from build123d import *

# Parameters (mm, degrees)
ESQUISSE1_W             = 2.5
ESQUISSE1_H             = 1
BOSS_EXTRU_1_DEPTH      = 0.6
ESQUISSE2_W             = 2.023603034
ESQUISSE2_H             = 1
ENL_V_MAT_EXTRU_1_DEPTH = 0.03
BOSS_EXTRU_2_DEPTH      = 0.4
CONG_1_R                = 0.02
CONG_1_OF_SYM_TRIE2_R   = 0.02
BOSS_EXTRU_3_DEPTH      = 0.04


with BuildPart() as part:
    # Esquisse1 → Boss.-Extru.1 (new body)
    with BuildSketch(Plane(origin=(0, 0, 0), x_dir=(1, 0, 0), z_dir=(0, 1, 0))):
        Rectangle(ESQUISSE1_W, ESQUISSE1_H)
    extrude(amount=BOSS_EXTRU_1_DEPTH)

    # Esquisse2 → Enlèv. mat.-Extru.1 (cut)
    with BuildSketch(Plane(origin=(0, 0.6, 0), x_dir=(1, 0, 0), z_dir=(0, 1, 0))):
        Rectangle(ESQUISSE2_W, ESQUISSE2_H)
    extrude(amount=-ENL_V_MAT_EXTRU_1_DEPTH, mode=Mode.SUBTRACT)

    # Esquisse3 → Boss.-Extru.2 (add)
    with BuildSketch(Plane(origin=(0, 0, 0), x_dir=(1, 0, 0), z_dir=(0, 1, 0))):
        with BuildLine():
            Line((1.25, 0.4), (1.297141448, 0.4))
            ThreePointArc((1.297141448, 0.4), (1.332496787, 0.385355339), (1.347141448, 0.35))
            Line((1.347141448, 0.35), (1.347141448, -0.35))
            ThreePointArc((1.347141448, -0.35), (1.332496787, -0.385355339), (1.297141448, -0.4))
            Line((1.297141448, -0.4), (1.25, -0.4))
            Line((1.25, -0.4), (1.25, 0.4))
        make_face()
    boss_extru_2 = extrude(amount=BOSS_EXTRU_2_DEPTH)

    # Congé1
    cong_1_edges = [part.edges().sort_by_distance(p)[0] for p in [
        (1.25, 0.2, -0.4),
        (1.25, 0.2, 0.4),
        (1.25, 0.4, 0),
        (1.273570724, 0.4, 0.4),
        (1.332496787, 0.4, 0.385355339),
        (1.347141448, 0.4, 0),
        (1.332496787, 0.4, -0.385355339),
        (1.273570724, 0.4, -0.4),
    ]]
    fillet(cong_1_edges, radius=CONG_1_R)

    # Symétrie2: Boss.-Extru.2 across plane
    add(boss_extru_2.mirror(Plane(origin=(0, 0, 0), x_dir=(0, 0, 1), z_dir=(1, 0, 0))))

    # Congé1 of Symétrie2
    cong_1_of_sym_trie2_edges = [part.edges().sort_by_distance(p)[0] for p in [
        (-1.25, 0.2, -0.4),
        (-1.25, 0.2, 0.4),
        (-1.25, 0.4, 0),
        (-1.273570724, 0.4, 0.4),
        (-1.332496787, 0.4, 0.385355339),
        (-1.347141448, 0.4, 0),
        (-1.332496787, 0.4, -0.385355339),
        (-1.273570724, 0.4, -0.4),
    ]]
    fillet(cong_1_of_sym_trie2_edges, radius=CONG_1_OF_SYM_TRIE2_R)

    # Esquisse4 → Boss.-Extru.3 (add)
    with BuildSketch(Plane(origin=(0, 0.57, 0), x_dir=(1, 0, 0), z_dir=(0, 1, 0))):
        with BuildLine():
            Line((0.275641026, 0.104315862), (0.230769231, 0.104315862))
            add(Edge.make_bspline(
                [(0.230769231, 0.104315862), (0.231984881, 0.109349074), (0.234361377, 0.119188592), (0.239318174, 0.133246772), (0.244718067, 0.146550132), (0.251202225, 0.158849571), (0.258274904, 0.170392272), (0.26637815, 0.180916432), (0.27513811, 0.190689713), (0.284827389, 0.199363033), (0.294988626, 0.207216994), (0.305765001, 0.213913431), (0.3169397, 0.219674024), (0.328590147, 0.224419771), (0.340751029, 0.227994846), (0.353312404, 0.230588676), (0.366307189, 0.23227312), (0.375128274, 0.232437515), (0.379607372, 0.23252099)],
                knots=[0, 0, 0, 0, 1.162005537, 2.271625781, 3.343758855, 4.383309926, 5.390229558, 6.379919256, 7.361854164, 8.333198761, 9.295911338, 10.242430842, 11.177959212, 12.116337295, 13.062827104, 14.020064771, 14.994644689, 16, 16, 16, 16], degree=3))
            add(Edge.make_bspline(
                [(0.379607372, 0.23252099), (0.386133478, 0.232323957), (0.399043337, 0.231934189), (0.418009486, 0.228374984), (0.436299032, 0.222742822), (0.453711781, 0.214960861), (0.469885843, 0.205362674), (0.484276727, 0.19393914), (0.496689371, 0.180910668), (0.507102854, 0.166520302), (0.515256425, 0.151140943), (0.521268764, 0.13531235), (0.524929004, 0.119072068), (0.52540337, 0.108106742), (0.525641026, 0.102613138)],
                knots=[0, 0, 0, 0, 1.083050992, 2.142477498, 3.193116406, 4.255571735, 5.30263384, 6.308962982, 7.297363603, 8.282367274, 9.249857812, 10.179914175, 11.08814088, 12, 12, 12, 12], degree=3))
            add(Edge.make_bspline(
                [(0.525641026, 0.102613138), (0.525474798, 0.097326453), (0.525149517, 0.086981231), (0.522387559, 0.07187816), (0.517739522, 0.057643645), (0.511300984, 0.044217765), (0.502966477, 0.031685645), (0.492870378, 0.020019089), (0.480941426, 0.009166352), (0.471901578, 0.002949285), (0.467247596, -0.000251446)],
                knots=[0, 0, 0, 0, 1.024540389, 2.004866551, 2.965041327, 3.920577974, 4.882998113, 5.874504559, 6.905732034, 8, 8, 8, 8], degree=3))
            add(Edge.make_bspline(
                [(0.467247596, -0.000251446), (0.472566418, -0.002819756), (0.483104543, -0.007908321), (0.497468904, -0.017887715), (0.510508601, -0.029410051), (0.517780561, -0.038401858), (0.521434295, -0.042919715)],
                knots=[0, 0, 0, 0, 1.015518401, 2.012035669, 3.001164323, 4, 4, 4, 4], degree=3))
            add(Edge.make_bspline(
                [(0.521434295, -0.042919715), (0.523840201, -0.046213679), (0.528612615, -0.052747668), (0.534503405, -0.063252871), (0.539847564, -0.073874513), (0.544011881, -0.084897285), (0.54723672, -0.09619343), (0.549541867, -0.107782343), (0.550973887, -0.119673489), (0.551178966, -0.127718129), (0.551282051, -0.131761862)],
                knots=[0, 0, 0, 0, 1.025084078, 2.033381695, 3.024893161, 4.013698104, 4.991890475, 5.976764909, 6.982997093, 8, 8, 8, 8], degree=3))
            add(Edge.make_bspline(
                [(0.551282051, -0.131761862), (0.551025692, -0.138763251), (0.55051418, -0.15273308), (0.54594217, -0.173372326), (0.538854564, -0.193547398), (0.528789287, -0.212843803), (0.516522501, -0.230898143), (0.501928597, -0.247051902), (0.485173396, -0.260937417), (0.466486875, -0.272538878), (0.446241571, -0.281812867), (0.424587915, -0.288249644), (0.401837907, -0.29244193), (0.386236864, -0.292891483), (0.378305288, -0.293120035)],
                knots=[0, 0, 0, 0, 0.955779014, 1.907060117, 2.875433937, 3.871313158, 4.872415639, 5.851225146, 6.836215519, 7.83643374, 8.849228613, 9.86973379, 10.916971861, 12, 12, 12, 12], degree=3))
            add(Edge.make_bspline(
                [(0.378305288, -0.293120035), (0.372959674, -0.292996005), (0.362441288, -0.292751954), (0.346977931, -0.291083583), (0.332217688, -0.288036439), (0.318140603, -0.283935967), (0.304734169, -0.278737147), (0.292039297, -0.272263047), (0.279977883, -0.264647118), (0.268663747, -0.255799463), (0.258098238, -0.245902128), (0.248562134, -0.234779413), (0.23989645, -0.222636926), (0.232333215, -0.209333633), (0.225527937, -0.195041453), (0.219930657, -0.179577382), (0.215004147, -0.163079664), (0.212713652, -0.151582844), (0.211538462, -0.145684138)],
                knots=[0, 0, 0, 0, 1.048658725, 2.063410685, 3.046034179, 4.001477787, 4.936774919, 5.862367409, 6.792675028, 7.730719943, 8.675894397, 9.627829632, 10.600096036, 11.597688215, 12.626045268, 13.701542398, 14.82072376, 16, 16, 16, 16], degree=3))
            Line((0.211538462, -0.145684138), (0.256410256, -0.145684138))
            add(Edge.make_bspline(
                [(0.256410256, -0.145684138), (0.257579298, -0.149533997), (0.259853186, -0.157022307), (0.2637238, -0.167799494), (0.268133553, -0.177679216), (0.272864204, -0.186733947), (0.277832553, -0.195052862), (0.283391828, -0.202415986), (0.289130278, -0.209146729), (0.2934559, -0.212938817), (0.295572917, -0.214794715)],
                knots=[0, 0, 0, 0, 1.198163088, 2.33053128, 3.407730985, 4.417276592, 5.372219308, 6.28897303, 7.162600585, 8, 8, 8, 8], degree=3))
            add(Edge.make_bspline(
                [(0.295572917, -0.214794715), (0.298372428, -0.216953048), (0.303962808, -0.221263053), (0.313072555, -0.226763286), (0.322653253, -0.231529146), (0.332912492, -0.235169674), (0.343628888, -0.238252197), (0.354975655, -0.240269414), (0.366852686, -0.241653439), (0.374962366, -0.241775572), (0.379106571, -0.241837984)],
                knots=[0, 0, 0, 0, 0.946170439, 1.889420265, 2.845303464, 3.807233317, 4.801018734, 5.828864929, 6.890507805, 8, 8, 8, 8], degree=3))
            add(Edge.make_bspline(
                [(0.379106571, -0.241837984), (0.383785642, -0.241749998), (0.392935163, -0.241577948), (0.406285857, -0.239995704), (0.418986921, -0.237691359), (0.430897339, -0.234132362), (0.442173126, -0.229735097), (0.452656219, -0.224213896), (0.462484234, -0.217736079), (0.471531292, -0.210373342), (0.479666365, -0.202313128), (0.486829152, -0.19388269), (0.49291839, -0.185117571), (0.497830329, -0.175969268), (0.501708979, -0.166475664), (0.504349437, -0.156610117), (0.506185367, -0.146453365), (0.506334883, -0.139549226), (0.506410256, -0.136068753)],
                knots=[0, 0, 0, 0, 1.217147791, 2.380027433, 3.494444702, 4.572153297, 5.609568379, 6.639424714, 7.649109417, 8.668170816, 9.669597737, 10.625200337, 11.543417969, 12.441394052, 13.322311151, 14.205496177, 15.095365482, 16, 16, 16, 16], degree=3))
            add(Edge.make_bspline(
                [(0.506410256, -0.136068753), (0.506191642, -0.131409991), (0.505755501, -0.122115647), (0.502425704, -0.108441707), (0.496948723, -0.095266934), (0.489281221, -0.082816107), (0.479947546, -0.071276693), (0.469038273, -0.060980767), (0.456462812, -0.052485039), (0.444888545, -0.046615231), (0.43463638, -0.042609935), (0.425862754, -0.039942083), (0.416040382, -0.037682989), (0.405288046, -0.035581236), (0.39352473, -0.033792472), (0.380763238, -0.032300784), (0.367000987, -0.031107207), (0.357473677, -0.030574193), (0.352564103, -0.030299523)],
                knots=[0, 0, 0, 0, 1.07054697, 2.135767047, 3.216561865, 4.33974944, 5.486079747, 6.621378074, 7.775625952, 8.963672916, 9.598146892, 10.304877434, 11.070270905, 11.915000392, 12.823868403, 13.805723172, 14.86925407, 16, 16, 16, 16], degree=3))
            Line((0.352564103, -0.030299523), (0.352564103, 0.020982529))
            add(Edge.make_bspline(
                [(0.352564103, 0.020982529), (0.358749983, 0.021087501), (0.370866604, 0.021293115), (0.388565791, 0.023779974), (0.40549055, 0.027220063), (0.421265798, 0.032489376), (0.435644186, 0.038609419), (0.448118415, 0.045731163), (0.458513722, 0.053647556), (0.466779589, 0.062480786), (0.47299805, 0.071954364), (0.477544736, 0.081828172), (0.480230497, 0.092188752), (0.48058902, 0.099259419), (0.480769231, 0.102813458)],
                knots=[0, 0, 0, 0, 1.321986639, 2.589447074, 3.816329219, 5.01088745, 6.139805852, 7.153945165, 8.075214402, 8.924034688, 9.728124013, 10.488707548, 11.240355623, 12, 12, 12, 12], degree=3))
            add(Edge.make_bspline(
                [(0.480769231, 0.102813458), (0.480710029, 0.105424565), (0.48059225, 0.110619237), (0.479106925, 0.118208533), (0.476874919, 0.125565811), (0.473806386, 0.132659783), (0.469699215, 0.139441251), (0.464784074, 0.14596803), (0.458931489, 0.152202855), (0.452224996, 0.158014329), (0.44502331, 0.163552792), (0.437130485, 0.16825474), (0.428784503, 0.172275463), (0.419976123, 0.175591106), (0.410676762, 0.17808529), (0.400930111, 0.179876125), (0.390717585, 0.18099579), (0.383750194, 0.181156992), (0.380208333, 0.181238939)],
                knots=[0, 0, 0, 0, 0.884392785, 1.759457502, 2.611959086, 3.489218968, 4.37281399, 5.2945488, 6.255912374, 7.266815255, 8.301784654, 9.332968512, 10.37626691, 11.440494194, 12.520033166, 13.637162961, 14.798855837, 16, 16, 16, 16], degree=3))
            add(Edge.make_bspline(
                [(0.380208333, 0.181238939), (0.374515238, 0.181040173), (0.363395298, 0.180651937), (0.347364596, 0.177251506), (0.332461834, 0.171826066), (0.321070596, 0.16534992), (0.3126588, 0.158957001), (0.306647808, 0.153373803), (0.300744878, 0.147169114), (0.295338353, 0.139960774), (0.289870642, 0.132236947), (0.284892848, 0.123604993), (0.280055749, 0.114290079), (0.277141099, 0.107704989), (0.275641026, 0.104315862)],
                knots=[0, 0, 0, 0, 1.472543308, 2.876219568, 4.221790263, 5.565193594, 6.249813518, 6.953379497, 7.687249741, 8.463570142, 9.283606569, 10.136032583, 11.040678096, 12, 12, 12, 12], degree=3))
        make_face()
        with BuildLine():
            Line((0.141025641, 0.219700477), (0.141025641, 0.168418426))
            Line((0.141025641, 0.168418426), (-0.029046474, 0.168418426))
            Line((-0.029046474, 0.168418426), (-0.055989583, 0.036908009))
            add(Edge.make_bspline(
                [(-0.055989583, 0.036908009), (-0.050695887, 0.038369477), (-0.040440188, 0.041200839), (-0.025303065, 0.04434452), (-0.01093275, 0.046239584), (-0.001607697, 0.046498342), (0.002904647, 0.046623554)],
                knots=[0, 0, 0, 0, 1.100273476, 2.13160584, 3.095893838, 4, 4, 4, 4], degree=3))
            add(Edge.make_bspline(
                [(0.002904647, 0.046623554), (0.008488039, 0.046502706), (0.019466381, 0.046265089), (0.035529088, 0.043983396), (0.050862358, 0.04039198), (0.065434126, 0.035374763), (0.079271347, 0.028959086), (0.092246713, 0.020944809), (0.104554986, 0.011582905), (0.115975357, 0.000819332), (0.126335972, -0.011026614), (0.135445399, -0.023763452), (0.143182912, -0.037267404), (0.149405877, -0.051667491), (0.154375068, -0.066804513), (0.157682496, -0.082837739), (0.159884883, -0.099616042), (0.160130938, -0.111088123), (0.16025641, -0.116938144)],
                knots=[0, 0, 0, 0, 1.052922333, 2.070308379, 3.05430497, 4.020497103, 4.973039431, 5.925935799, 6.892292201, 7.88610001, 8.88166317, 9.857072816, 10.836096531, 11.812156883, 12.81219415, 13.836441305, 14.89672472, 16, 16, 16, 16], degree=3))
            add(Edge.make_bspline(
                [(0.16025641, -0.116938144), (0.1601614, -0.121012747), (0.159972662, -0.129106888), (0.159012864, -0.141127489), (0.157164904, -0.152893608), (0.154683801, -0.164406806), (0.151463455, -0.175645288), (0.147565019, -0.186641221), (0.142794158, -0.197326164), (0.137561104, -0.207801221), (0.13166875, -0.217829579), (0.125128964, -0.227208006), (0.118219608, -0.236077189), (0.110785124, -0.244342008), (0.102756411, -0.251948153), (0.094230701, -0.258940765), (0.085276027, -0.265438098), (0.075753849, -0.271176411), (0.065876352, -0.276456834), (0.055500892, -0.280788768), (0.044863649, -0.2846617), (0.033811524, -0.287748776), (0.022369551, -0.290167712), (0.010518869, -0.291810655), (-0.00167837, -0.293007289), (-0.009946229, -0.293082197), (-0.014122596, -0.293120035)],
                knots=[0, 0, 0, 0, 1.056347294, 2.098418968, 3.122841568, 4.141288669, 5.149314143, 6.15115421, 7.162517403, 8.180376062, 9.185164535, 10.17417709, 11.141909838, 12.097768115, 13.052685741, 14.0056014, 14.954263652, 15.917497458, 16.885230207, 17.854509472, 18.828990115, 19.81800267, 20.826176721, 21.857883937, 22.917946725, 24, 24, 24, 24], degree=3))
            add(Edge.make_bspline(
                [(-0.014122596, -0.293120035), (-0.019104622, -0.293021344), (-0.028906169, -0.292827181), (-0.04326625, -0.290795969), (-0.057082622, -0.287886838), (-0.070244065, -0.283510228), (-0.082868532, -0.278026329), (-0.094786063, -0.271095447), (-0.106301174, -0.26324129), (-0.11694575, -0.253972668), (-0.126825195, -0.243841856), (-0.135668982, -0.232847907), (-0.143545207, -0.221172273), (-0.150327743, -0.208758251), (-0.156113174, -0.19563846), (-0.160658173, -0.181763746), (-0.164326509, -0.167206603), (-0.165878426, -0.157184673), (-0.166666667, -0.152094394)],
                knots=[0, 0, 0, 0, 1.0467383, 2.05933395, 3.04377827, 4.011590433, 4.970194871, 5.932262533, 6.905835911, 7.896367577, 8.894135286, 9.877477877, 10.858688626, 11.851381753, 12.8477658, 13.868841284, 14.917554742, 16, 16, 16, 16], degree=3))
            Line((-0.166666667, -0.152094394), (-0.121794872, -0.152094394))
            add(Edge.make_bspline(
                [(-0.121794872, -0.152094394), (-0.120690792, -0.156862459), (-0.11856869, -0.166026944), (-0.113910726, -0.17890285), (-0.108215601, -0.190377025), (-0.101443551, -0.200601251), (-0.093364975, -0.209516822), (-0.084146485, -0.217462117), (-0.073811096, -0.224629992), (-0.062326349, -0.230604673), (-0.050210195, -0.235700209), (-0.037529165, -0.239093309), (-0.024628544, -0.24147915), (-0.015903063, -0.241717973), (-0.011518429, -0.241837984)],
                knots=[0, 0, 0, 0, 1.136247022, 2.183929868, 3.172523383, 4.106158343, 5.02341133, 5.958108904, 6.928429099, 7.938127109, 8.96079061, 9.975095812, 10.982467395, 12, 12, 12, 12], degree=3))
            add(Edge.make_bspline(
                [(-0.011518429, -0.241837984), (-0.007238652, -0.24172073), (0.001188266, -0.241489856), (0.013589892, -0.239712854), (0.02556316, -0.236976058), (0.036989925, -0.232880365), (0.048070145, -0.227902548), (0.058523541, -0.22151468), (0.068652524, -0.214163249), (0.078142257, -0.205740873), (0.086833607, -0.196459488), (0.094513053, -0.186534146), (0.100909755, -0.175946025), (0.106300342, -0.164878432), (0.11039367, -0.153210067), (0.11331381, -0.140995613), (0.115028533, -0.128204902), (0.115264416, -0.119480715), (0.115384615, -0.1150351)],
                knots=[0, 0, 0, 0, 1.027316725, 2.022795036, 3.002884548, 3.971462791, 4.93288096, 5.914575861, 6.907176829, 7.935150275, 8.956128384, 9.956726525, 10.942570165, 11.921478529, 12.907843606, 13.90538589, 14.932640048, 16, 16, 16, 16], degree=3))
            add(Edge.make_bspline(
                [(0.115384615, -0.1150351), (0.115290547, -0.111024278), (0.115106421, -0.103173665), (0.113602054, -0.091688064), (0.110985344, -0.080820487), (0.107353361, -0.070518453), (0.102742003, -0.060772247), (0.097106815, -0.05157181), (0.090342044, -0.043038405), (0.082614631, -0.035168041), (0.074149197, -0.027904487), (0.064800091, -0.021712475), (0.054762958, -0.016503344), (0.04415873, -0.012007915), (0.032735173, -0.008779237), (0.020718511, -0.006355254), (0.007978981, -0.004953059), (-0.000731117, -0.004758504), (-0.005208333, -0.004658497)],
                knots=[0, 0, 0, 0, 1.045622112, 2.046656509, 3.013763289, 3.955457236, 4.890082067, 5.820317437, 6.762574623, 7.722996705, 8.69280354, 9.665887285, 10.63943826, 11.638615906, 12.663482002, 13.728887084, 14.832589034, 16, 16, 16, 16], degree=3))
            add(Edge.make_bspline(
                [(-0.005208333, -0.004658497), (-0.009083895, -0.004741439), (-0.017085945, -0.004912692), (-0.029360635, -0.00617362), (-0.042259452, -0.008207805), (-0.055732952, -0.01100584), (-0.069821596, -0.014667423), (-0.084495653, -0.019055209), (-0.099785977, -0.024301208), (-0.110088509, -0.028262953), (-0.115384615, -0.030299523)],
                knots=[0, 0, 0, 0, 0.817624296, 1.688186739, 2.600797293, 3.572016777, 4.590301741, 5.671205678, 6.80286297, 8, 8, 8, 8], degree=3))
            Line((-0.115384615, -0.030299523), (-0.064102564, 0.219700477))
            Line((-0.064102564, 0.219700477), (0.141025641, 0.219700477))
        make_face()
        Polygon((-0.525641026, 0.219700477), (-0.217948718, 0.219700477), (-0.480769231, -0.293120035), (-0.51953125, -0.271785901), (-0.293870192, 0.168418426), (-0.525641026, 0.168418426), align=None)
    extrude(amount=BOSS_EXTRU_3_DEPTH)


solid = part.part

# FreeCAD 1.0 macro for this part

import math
import FreeCAD as App
import Part
import Sketcher

V = App.Vector
Q = App.Units.Quantity


def edges_at(feature, points):
    """Names of the edges that pass closest to the given points."""
    edges = feature.Shape.Edges
    near = lambda p: min(range(len(edges)), key=lambda i: edges[i].distToShape(Part.Vertex(*p))[0])
    return sorted({f"Edge{near(p) + 1}" for p in points})


def add_polygon(sketch, points):
    """Adds a closed chain of lines whose ends are joined by coincident constraints."""
    first, n = sketch.GeometryCount, len(points)
    for a, b in zip(points, points[1:] + points[:1]):
        sketch.addGeometry(Part.LineSegment(App.Vector(*a, 0), App.Vector(*b, 0)), False)
    for i in range(n):
        sketch.addConstraint(Sketcher.Constraint("Coincident", first + i, 2, first + (i + 1) % n, 1))

doc = App.newDocument("Part")
body = doc.addObject("PartDesign::Body", "Body")

# Sketch on XZ plane
sketch1 = body.newObject("Sketcher::SketchObject", "Sketch")
sketch1.AttachmentSupport = (doc.getObject("XZ_Plane"), [""])
sketch1.MapMode = "FlatFace"
add_polygon(sketch1, [(-1.2, -0.5), (-1.2, 0.5), (1.2, 0.5), (1.2, -0.5)])  # lines 0-3
sketch1.addConstraint([
    Sketcher.Constraint("Vertical", 0),
    Sketcher.Constraint("Horizontal", 1),
    Sketcher.Constraint("Vertical", 2),
    Sketcher.Constraint("Horizontal", 3),
    Sketcher.Constraint("Symmetric", 0, 2, 2, 2, -1, 1),
    Sketcher.Constraint("DistanceY", 0, 1, 0, 2, Q("1 mm")),
    Sketcher.Constraint("DistanceX", 1, 1, 1, 2, Q("2.5 mm")),
])
pad1 = body.newObject("PartDesign::Pad", "Pad")
pad1.Profile = sketch1
pad1.Length = 0.6
pad1.Reversed = True

# Sketch on XZ plane
sketch2 = body.newObject("Sketcher::SketchObject", "Sketch001")
sketch2.AttachmentSupport = (doc.getObject("XZ_Plane"), [""])
sketch2.MapMode = "FlatFace"
sketch2.AttachmentOffset = App.Placement(V(0, 0, -0.6), App.Rotation())
add_polygon(sketch2, [(-1, -0.5), (-1, 0.5), (1, 0.5), (1, -0.5)])  # lines 0-3
sketch2.addConstraint([
    Sketcher.Constraint("Vertical", 0),
    Sketcher.Constraint("Horizontal", 1),
    Sketcher.Constraint("Vertical", 2),
    Sketcher.Constraint("Horizontal", 3),
    Sketcher.Constraint("Symmetric", 0, 2, 2, 2, -1, 1),
    Sketcher.Constraint("DistanceY", 0, 1, 0, 2, Q("1 mm")),
    Sketcher.Constraint("DistanceX", 0, 2, -1, 1, Q("1.011802 mm")),
])
pocket1 = body.newObject("PartDesign::Pocket", "Pocket")
pocket1.Profile = sketch2
pocket1.Length = 0.03
pocket1.Reversed = True

# Sketch on XZ plane
sketch3 = body.newObject("Sketcher::SketchObject", "Sketch002")
sketch3.AttachmentSupport = (doc.getObject("XZ_Plane"), [""])
sketch3.MapMode = "FlatFace"
sketch3.addGeometry([
    Part.LineSegment(V(1.297, -0.4, 0), V(1.25, -0.4, 0)),  # 0
    Part.LineSegment(V(1.25, -0.4, 0), V(1.25, 0.4, 0)),  # 1
    Part.LineSegment(V(1.25, 0.4, 0), V(1.297, 0.4, 0)),  # 2
    Part.ArcOfCircle(Part.Circle(V(1.297, 0.35, 0), V(0, 0, 1), 0.05), math.radians(0), math.radians(90)),  # 3
    Part.LineSegment(V(1.347, 0.35, 0), V(1.347, -0.35, 0)),  # 4
    Part.ArcOfCircle(Part.Circle(V(1.297, -0.35, 0), V(0, 0, 1), 0.05), math.radians(-90), math.radians(0)),  # 5
], False)
sketch3.addConstraint([
    Sketcher.Constraint("Coincident", 0, 2, 1, 1),
    Sketcher.Constraint("Coincident", 1, 2, 2, 1),
    Sketcher.Constraint("Tangent", 2, 2, 3, 2),
    Sketcher.Constraint("Tangent", 3, 1, 4, 1),
    Sketcher.Constraint("Tangent", 4, 2, 5, 2),
    Sketcher.Constraint("Tangent", 5, 1, 0, 1),
    Sketcher.Constraint("Horizontal", 0),
    Sketcher.Constraint("Vertical", 1),
    Sketcher.Constraint("Horizontal", 2),
    Sketcher.Constraint("Vertical", 4),
    Sketcher.Constraint("Equal", 3, 5),
    Sketcher.Constraint("Radius", 3, Q("0.05 mm")),
    Sketcher.Constraint("DistanceY", 1, 1, 1, 2, Q("0.8 mm")),
    Sketcher.Constraint("DistanceY", 0, 2, -1, 1, Q("0.4 mm")),
    Sketcher.Constraint("DistanceX", -1, 1, 0, 2, Q("1.25 mm")),
    Sketcher.Constraint("DistanceX", 0, 2, 0, 1, Q("0.047141 mm")),
])
pad2 = body.newObject("PartDesign::Pad", "Pad001")
pad2.Profile = sketch3
pad2.Length = 0.4
pad2.Reversed = True
doc.recompute()

fillet = body.newObject("PartDesign::Fillet", "Fillet")
fillet.Base = (pad2, edges_at(pad2, [
    (1.25, 0.2, -0.4),
    (1.25, 0.2, 0.4),
    (1.25, 0.4, 0),
    (1.274, 0.4, 0.4),
    (1.332, 0.4, 0.385),
    (1.347, 0.4, 0),
    (1.332, 0.4, -0.385),
    (1.274, 0.4, -0.4),
]))
fillet.Radius = 0.02
doc.recompute()

mirrored = body.newObject("PartDesign::Mirrored", "Mirrored")
mirrored.Originals = [pad2]
mirrored.MirrorPlane = (doc.getObject("YZ_Plane"), [""])
body.Tip = mirrored
doc.recompute()

fillet2 = body.newObject("PartDesign::Fillet", "Fillet001")
fillet2.Base = (mirrored, edges_at(mirrored, [
    (-1.25, 0.2, -0.4),
    (-1.25, 0.2, 0.4),
    (-1.25, 0.4, 0),
    (-1.274, 0.4, 0.4),
    (-1.332, 0.4, 0.385),
    (-1.347, 0.4, 0),
    (-1.332, 0.4, -0.385),
    (-1.274, 0.4, -0.4),
]))
fillet2.Radius = 0.02

# Sketch on XZ plane
sketch4 = body.newObject("Sketcher::SketchObject", "Sketch003")
sketch4.AttachmentSupport = (doc.getObject("XZ_Plane"), [""])
sketch4.MapMode = "FlatFace"
sketch4.AttachmentOffset = App.Placement(V(0, 0, -0.57), App.Rotation())
sketch4.addGeometry(Part.LineSegment(V(0.230769, -0.104316, 0), V(0.275641, -0.104316, 0)), False)  # 0
sketch4.addGeometry(Part.BSplineCurve([V(0.380208, -0.181239, 0), V(0.374515, -0.18104, 0), V(0.363395, -0.180652, 0), V(0.347365, -0.177252, 0), V(0.332462, -0.171826, 0), V(0.321071, -0.16535, 0), V(0.312659, -0.158957, 0), V(0.306648, -0.153374, 0), V(0.300745, -0.147169, 0), V(0.295338, -0.139961, 0), V(0.289871, -0.132237, 0), V(0.284893, -0.123605, 0), V(0.280056, -0.11429, 0), V(0.277141, -0.107705, 0), V(0.275641, -0.104316, 0)], [4, 1, 1, 1, 1, 1, 1, 1, 1, 1, 1, 1, 4], [0, 1.472543308, 2.876219568, 4.221790263, 5.565193594, 6.249813518, 6.953379497, 7.687249741, 8.463570142, 9.283606569, 10.136032583, 11.040678096, 12], False, 3, [1, 1, 1, 1, 1, 1, 1, 1, 1, 1, 1, 1, 1, 1, 1], False), False)  # 1
sketch4.addGeometry(Part.BSplineCurve([V(0.480769, -0.102813, 0), V(0.48071, -0.105425, 0), V(0.480592, -0.110619, 0), V(0.479107, -0.118209, 0), V(0.476875, -0.125566, 0), V(0.473806, -0.13266, 0), V(0.469699, -0.139441, 0), V(0.464784, -0.145968, 0), V(0.458931, -0.152203, 0), V(0.452225, -0.158014, 0), V(0.445023, -0.163553, 0), V(0.43713, -0.168255, 0), V(0.428785, -0.172275, 0), V(0.419976, -0.175591, 0), V(0.410677, -0.178085, 0), V(0.40093, -0.179876, 0), V(0.390718, -0.180996, 0), V(0.38375, -0.181157, 0), V(0.380208, -0.181239, 0)], [4, 1, 1, 1, 1, 1, 1, 1, 1, 1, 1, 1, 1, 1, 1, 1, 4], [0, 0.884392785, 1.759457502, 2.611959086, 3.489218968, 4.37281399, 5.2945488, 6.255912374, 7.266815255, 8.301784654, 9.332968512, 10.37626691, 11.440494194, 12.520033166, 13.637162961, 14.798855837, 16], False, 3, [1, 1, 1, 1, 1, 1, 1, 1, 1, 1, 1, 1, 1, 1, 1, 1, 1, 1, 1], False), False)  # 2
sketch4.addGeometry(Part.BSplineCurve([V(0.352564, -0.020983, 0), V(0.35875, -0.021088, 0), V(0.370867, -0.021293, 0), V(0.388566, -0.02378, 0), V(0.405491, -0.02722, 0), V(0.421266, -0.032489, 0), V(0.435644, -0.038609, 0), V(0.448118, -0.045731, 0), V(0.458514, -0.053648, 0), V(0.46678, -0.062481, 0), V(0.472998, -0.071954, 0), V(0.477545, -0.081828, 0), V(0.48023, -0.092189, 0), V(0.480589, -0.099259, 0), V(0.480769, -0.102813, 0)], [4, 1, 1, 1, 1, 1, 1, 1, 1, 1, 1, 1, 4], [0, 1.321986639, 2.589447074, 3.816329219, 5.01088745, 6.139805852, 7.153945165, 8.075214402, 8.924034688, 9.728124013, 10.488707548, 11.240355623, 12], False, 3, [1, 1, 1, 1, 1, 1, 1, 1, 1, 1, 1, 1, 1, 1, 1], False), False)  # 3
sketch4.addGeometry(Part.LineSegment(V(0.352564, -0.020983, 0), V(0.352564, 0.0303, 0)), False)  # 4
sketch4.addGeometry(Part.BSplineCurve([V(0.50641, 0.136069, 0), V(0.506192, 0.13141, 0), V(0.505756, 0.122116, 0), V(0.502426, 0.108442, 0), V(0.496949, 0.095267, 0), V(0.489281, 0.082816, 0), V(0.479948, 0.071277, 0), V(0.469038, 0.060981, 0), V(0.456463, 0.052485, 0), V(0.444889, 0.046615, 0), V(0.434636, 0.04261, 0), V(0.425863, 0.039942, 0), V(0.41604, 0.037683, 0), V(0.405288, 0.035581, 0), V(0.393525, 0.033792, 0), V(0.380763, 0.032301, 0), V(0.367001, 0.031107, 0), V(0.357474, 0.030574, 0), V(0.352564, 0.0303, 0)], [4, 1, 1, 1, 1, 1, 1, 1, 1, 1, 1, 1, 1, 1, 1, 1, 4], [0, 1.07054697, 2.135767047, 3.216561865, 4.33974944, 5.486079747, 6.621378074, 7.775625952, 8.963672916, 9.598146892, 10.304877434, 11.070270905, 11.915000392, 12.823868403, 13.805723172, 14.86925407, 16], False, 3, [1, 1, 1, 1, 1, 1, 1, 1, 1, 1, 1, 1, 1, 1, 1, 1, 1, 1, 1], False), False)  # 5
sketch4.addGeometry(Part.BSplineCurve([V(0.379107, 0.241838, 0), V(0.383786, 0.24175, 0), V(0.392935, 0.241578, 0), V(0.406286, 0.239996, 0), V(0.418987, 0.237691, 0), V(0.430897, 0.234132, 0), V(0.442173, 0.229735, 0), V(0.452656, 0.224214, 0), V(0.462484, 0.217736, 0), V(0.471531, 0.210373, 0), V(0.479666, 0.202313, 0), V(0.486829, 0.193883, 0), V(0.492918, 0.185118, 0), V(0.49783, 0.175969, 0), V(0.501709, 0.166476, 0), V(0.504349, 0.15661, 0), V(0.506185, 0.146453, 0), V(0.506335, 0.139549, 0), V(0.50641, 0.136069, 0)], [4, 1, 1, 1, 1, 1, 1, 1, 1, 1, 1, 1, 1, 1, 1, 1, 4], [0, 1.217147791, 2.380027433, 3.494444702, 4.572153297, 5.609568379, 6.639424714, 7.649109417, 8.668170816, 9.669597737, 10.625200337, 11.543417969, 12.441394052, 13.322311151, 14.205496177, 15.095365482, 16], False, 3, [1, 1, 1, 1, 1, 1, 1, 1, 1, 1, 1, 1, 1, 1, 1, 1, 1, 1, 1], False), False)  # 6
sketch4.addGeometry(Part.BSplineCurve([V(0.295573, 0.214795, 0), V(0.298372, 0.216953, 0), V(0.303963, 0.221263, 0), V(0.313073, 0.226763, 0), V(0.322653, 0.231529, 0), V(0.332912, 0.23517, 0), V(0.343629, 0.238252, 0), V(0.354976, 0.240269, 0), V(0.366853, 0.241653, 0), V(0.374962, 0.241776, 0), V(0.379107, 0.241838, 0)], [4, 1, 1, 1, 1, 1, 1, 1, 4], [0, 0.946170439, 1.889420265, 2.845303464, 3.807233317, 4.801018734, 5.828864929, 6.890507805, 8], False, 3, [1, 1, 1, 1, 1, 1, 1, 1, 1, 1, 1], False), False)  # 7
sketch4.addGeometry(Part.BSplineCurve([V(0.25641, 0.145684, 0), V(0.257579, 0.149534, 0), V(0.259853, 0.157022, 0), V(0.263724, 0.167799, 0), V(0.268134, 0.177679, 0), V(0.272864, 0.186734, 0), V(0.277833, 0.195053, 0), V(0.283392, 0.202416, 0), V(0.28913, 0.209147, 0), V(0.293456, 0.212939, 0), V(0.295573, 0.214795, 0)], [4, 1, 1, 1, 1, 1, 1, 1, 4], [0, 1.198163088, 2.33053128, 3.407730985, 4.417276592, 5.372219308, 6.28897303, 7.162600585, 8], False, 3, [1, 1, 1, 1, 1, 1, 1, 1, 1, 1, 1], False), False)  # 8
sketch4.addGeometry(Part.LineSegment(V(0.25641, 0.145684, 0), V(0.211538, 0.145684, 0)), False)  # 9
sketch4.addGeometry(Part.BSplineCurve([V(0.378305, 0.29312, 0), V(0.37296, 0.292996, 0), V(0.362441, 0.292752, 0), V(0.346978, 0.291084, 0), V(0.332218, 0.288036, 0), V(0.318141, 0.283936, 0), V(0.304734, 0.278737, 0), V(0.292039, 0.272263, 0), V(0.279978, 0.264647, 0), V(0.268664, 0.255799, 0), V(0.258098, 0.245902, 0), V(0.248562, 0.234779, 0), V(0.239896, 0.222637, 0), V(0.232333, 0.209334, 0), V(0.225528, 0.195041, 0), V(0.219931, 0.179577, 0), V(0.215004, 0.16308, 0), V(0.212714, 0.151583, 0), V(0.211538, 0.145684, 0)], [4, 1, 1, 1, 1, 1, 1, 1, 1, 1, 1, 1, 1, 1, 1, 1, 4], [0, 1.048658725, 2.063410685, 3.046034179, 4.001477787, 4.936774919, 5.862367409, 6.792675028, 7.730719943, 8.675894397, 9.627829632, 10.600096036, 11.597688215, 12.626045268, 13.701542398, 14.82072376, 16], False, 3, [1, 1, 1, 1, 1, 1, 1, 1, 1, 1, 1, 1, 1, 1, 1, 1, 1, 1, 1], False), False)  # 10
sketch4.addGeometry(Part.BSplineCurve([V(0.551282, 0.131762, 0), V(0.551026, 0.138763, 0), V(0.550514, 0.152733, 0), V(0.545942, 0.173372, 0), V(0.538855, 0.193547, 0), V(0.528789, 0.212844, 0), V(0.516523, 0.230898, 0), V(0.501929, 0.247052, 0), V(0.485173, 0.260937, 0), V(0.466487, 0.272539, 0), V(0.446242, 0.281813, 0), V(0.424588, 0.28825, 0), V(0.401838, 0.292442, 0), V(0.386237, 0.292891, 0), V(0.378305, 0.29312, 0)], [4, 1, 1, 1, 1, 1, 1, 1, 1, 1, 1, 1, 4], [0, 0.955779014, 1.907060117, 2.875433937, 3.871313158, 4.872415639, 5.851225146, 6.836215519, 7.83643374, 8.849228613, 9.86973379, 10.916971861, 12], False, 3, [1, 1, 1, 1, 1, 1, 1, 1, 1, 1, 1, 1, 1, 1, 1], False), False)  # 11
sketch4.addGeometry(Part.BSplineCurve([V(0.521434, 0.04292, 0), V(0.52384, 0.046214, 0), V(0.528613, 0.052748, 0), V(0.534503, 0.063253, 0), V(0.539848, 0.073875, 0), V(0.544012, 0.084897, 0), V(0.547237, 0.096193, 0), V(0.549542, 0.107782, 0), V(0.550974, 0.119673, 0), V(0.551179, 0.127718, 0), V(0.551282, 0.131762, 0)], [4, 1, 1, 1, 1, 1, 1, 1, 4], [0, 1.025084078, 2.033381695, 3.024893161, 4.013698104, 4.991890475, 5.976764909, 6.982997093, 8], False, 3, [1, 1, 1, 1, 1, 1, 1, 1, 1, 1, 1], False), False)  # 12
sketch4.addGeometry(Part.BSplineCurve([V(0.467248, 0.000251, 0), V(0.472566, 0.00282, 0), V(0.483105, 0.007908, 0), V(0.497469, 0.017888, 0), V(0.510509, 0.02941, 0), V(0.517781, 0.038402, 0), V(0.521434, 0.04292, 0)], [4, 1, 1, 1, 4], [0, 1.015518401, 2.012035669, 3.001164323, 4], False, 3, [1, 1, 1, 1, 1, 1, 1], False), False)  # 13
sketch4.addGeometry(Part.BSplineCurve([V(0.525641, -0.102613, 0), V(0.525475, -0.097326, 0), V(0.52515, -0.086981, 0), V(0.522388, -0.071878, 0), V(0.51774, -0.057644, 0), V(0.511301, -0.044218, 0), V(0.502966, -0.031686, 0), V(0.49287, -0.020019, 0), V(0.480941, -0.009166, 0), V(0.471902, -0.002949, 0), V(0.467248, 0.000251, 0)], [4, 1, 1, 1, 1, 1, 1, 1, 4], [0, 1.024540389, 2.004866551, 2.965041327, 3.920577974, 4.882998113, 5.874504559, 6.905732034, 8], False, 3, [1, 1, 1, 1, 1, 1, 1, 1, 1, 1, 1], False), False)  # 14
sketch4.addGeometry(Part.BSplineCurve([V(0.379607, -0.232521, 0), V(0.386133, -0.232324, 0), V(0.399043, -0.231934, 0), V(0.418009, -0.228375, 0), V(0.436299, -0.222743, 0), V(0.453712, -0.214961, 0), V(0.469886, -0.205363, 0), V(0.484277, -0.193939, 0), V(0.496689, -0.180911, 0), V(0.507103, -0.16652, 0), V(0.515256, -0.151141, 0), V(0.521269, -0.135312, 0), V(0.524929, -0.119072, 0), V(0.525403, -0.108107, 0), V(0.525641, -0.102613, 0)], [4, 1, 1, 1, 1, 1, 1, 1, 1, 1, 1, 1, 4], [0, 1.083050992, 2.142477498, 3.193116406, 4.255571735, 5.30263384, 6.308962982, 7.297363603, 8.282367274, 9.249857812, 10.179914175, 11.08814088, 12], False, 3, [1, 1, 1, 1, 1, 1, 1, 1, 1, 1, 1, 1, 1, 1, 1], False), False)  # 15
sketch4.addGeometry(Part.BSplineCurve([V(0.230769, -0.104316, 0), V(0.231985, -0.109349, 0), V(0.234361, -0.119189, 0), V(0.239318, -0.133247, 0), V(0.244718, -0.14655, 0), V(0.251202, -0.15885, 0), V(0.258275, -0.170392, 0), V(0.266378, -0.180916, 0), V(0.275138, -0.19069, 0), V(0.284827, -0.199363, 0), V(0.294989, -0.207217, 0), V(0.305765, -0.213913, 0), V(0.31694, -0.219674, 0), V(0.32859, -0.22442, 0), V(0.340751, -0.227995, 0), V(0.353312, -0.230589, 0), V(0.366307, -0.232273, 0), V(0.375128, -0.232438, 0), V(0.379607, -0.232521, 0)], [4, 1, 1, 1, 1, 1, 1, 1, 1, 1, 1, 1, 1, 1, 1, 1, 4], [0, 1.162005537, 2.271625781, 3.343758855, 4.383309926, 5.390229558, 6.379919256, 7.361854164, 8.333198761, 9.295911338, 10.242430842, 11.177959212, 12.116337295, 13.062827104, 14.020064771, 14.994644689, 16], False, 3, [1, 1, 1, 1, 1, 1, 1, 1, 1, 1, 1, 1, 1, 1, 1, 1, 1, 1, 1], False), False)  # 16
sketch4.addGeometry(Part.LineSegment(V(0.141026, -0.168418, 0), V(0.141026, -0.2197, 0)), False)  # 17
sketch4.addGeometry(Part.LineSegment(V(0.141026, -0.2197, 0), V(-0.064103, -0.2197, 0)), False)  # 18
sketch4.addGeometry(Part.LineSegment(V(-0.064103, -0.2197, 0), V(-0.115385, 0.0303, 0)), False)  # 19
sketch4.addGeometry(Part.BSplineCurve([V(-0.005208, 0.004658, 0), V(-0.009084, 0.004741, 0), V(-0.017086, 0.004913, 0), V(-0.029361, 0.006174, 0), V(-0.042259, 0.008208, 0), V(-0.055733, 0.011006, 0), V(-0.069822, 0.014667, 0), V(-0.084496, 0.019055, 0), V(-0.099786, 0.024301, 0), V(-0.110089, 0.028263, 0), V(-0.115385, 0.0303, 0)], [4, 1, 1, 1, 1, 1, 1, 1, 4], [0, 0.817624296, 1.688186739, 2.600797293, 3.572016777, 4.590301741, 5.671205678, 6.80286297, 8], False, 3, [1, 1, 1, 1, 1, 1, 1, 1, 1, 1, 1], False), False)  # 20
sketch4.addGeometry(Part.BSplineCurve([V(0.115385, 0.115035, 0), V(0.115291, 0.111024, 0), V(0.115106, 0.103174, 0), V(0.113602, 0.091688, 0), V(0.110985, 0.08082, 0), V(0.107353, 0.070518, 0), V(0.102742, 0.060772, 0), V(0.097107, 0.051572, 0), V(0.090342, 0.043038, 0), V(0.082615, 0.035168, 0), V(0.074149, 0.027904, 0), V(0.0648, 0.021712, 0), V(0.054763, 0.016503, 0), V(0.044159, 0.012008, 0), V(0.032735, 0.008779, 0), V(0.020719, 0.006355, 0), V(0.007979, 0.004953, 0), V(-0.000731, 0.004759, 0), V(-0.005208, 0.004658, 0)], [4, 1, 1, 1, 1, 1, 1, 1, 1, 1, 1, 1, 1, 1, 1, 1, 4], [0, 1.045622112, 2.046656509, 3.013763289, 3.955457236, 4.890082067, 5.820317437, 6.762574623, 7.722996705, 8.69280354, 9.665887285, 10.63943826, 11.638615906, 12.663482002, 13.728887084, 14.832589034, 16], False, 3, [1, 1, 1, 1, 1, 1, 1, 1, 1, 1, 1, 1, 1, 1, 1, 1, 1, 1, 1], False), False)  # 21
sketch4.addGeometry(Part.BSplineCurve([V(-0.011518, 0.241838, 0), V(-0.007239, 0.241721, 0), V(0.001188, 0.24149, 0), V(0.01359, 0.239713, 0), V(0.025563, 0.236976, 0), V(0.03699, 0.23288, 0), V(0.04807, 0.227903, 0), V(0.058524, 0.221515, 0), V(0.068653, 0.214163, 0), V(0.078142, 0.205741, 0), V(0.086834, 0.196459, 0), V(0.094513, 0.186534, 0), V(0.10091, 0.175946, 0), V(0.1063, 0.164878, 0), V(0.110394, 0.15321, 0), V(0.113314, 0.140996, 0), V(0.115029, 0.128205, 0), V(0.115264, 0.119481, 0), V(0.115385, 0.115035, 0)], [4, 1, 1, 1, 1, 1, 1, 1, 1, 1, 1, 1, 1, 1, 1, 1, 4], [0, 1.027316725, 2.022795036, 3.002884548, 3.971462791, 4.93288096, 5.914575861, 6.907176829, 7.935150275, 8.956128384, 9.956726525, 10.942570165, 11.921478529, 12.907843606, 13.90538589, 14.932640048, 16], False, 3, [1, 1, 1, 1, 1, 1, 1, 1, 1, 1, 1, 1, 1, 1, 1, 1, 1, 1, 1], False), False)  # 22
sketch4.addGeometry(Part.BSplineCurve([V(-0.121795, 0.152094, 0), V(-0.120691, 0.156862, 0), V(-0.118569, 0.166027, 0), V(-0.113911, 0.178903, 0), V(-0.108216, 0.190377, 0), V(-0.101444, 0.200601, 0), V(-0.093365, 0.209517, 0), V(-0.084146, 0.217462, 0), V(-0.073811, 0.22463, 0), V(-0.062326, 0.230605, 0), V(-0.05021, 0.2357, 0), V(-0.037529, 0.239093, 0), V(-0.024629, 0.241479, 0), V(-0.015903, 0.241718, 0), V(-0.011518, 0.241838, 0)], [4, 1, 1, 1, 1, 1, 1, 1, 1, 1, 1, 1, 4], [0, 1.136247022, 2.183929868, 3.172523383, 4.106158343, 5.02341133, 5.958108904, 6.928429099, 7.938127109, 8.96079061, 9.975095812, 10.982467395, 12], False, 3, [1, 1, 1, 1, 1, 1, 1, 1, 1, 1, 1, 1, 1, 1, 1], False), False)  # 23
sketch4.addGeometry(Part.LineSegment(V(-0.121795, 0.152094, 0), V(-0.166667, 0.152094, 0)), False)  # 24
sketch4.addGeometry(Part.BSplineCurve([V(-0.014123, 0.29312, 0), V(-0.019105, 0.293021, 0), V(-0.028906, 0.292827, 0), V(-0.043266, 0.290796, 0), V(-0.057083, 0.287887, 0), V(-0.070244, 0.28351, 0), V(-0.082869, 0.278026, 0), V(-0.094786, 0.271095, 0), V(-0.106301, 0.263241, 0), V(-0.116946, 0.253973, 0), V(-0.126825, 0.243842, 0), V(-0.135669, 0.232848, 0), V(-0.143545, 0.221172, 0), V(-0.150328, 0.208758, 0), V(-0.156113, 0.195638, 0), V(-0.160658, 0.181764, 0), V(-0.164327, 0.167207, 0), V(-0.165878, 0.157185, 0), V(-0.166667, 0.152094, 0)], [4, 1, 1, 1, 1, 1, 1, 1, 1, 1, 1, 1, 1, 1, 1, 1, 4], [0, 1.0467383, 2.05933395, 3.04377827, 4.011590433, 4.970194871, 5.932262533, 6.905835911, 7.896367577, 8.894135286, 9.877477877, 10.858688626, 11.851381753, 12.8477658, 13.868841284, 14.917554742, 16], False, 3, [1, 1, 1, 1, 1, 1, 1, 1, 1, 1, 1, 1, 1, 1, 1, 1, 1, 1, 1], False), False)  # 25
sketch4.addGeometry(Part.BSplineCurve([V(0.160256, 0.116938, 0), V(0.160161, 0.121013, 0), V(0.159973, 0.129107, 0), V(0.159013, 0.141127, 0), V(0.157165, 0.152894, 0), V(0.154684, 0.164407, 0), V(0.151463, 0.175645, 0), V(0.147565, 0.186641, 0), V(0.142794, 0.197326, 0), V(0.137561, 0.207801, 0), V(0.131669, 0.21783, 0), V(0.125129, 0.227208, 0), V(0.11822, 0.236077, 0), V(0.110785, 0.244342, 0), V(0.102756, 0.251948, 0), V(0.094231, 0.258941, 0), V(0.085276, 0.265438, 0), V(0.075754, 0.271176, 0), V(0.065876, 0.276457, 0), V(0.055501, 0.280789, 0), V(0.044864, 0.284662, 0), V(0.033812, 0.287749, 0), V(0.02237, 0.290168, 0), V(0.010519, 0.291811, 0), V(-0.001678, 0.293007, 0), V(-0.009946, 0.293082, 0), V(-0.014123, 0.29312, 0)], [4, 1, 1, 1, 1, 1, 1, 1, 1, 1, 1, 1, 1, 1, 1, 1, 1, 1, 1, 1, 1, 1, 1, 1, 4], [0, 1.056347294, 2.098418968, 3.122841568, 4.141288669, 5.149314143, 6.15115421, 7.162517403, 8.180376062, 9.185164535, 10.17417709, 11.141909838, 12.097768115, 13.052685741, 14.0056014, 14.954263652, 15.917497458, 16.885230207, 17.854509472, 18.828990115, 19.81800267, 20.826176721, 21.857883937, 22.917946725, 24], False, 3, [1, 1, 1, 1, 1, 1, 1, 1, 1, 1, 1, 1, 1, 1, 1, 1, 1, 1, 1, 1, 1, 1, 1, 1, 1, 1, 1], False), False)  # 26
sketch4.addGeometry(Part.BSplineCurve([V(0.002905, -0.046624, 0), V(0.008488, -0.046503, 0), V(0.019466, -0.046265, 0), V(0.035529, -0.043983, 0), V(0.050862, -0.040392, 0), V(0.065434, -0.035375, 0), V(0.079271, -0.028959, 0), V(0.092247, -0.020945, 0), V(0.104555, -0.011583, 0), V(0.115975, -0.000819, 0), V(0.126336, 0.011027, 0), V(0.135445, 0.023763, 0), V(0.143183, 0.037267, 0), V(0.149406, 0.051667, 0), V(0.154375, 0.066805, 0), V(0.157682, 0.082838, 0), V(0.159885, 0.099616, 0), V(0.160131, 0.111088, 0), V(0.160256, 0.116938, 0)], [4, 1, 1, 1, 1, 1, 1, 1, 1, 1, 1, 1, 1, 1, 1, 1, 4], [0, 1.052922333, 2.070308379, 3.05430497, 4.020497103, 4.973039431, 5.925935799, 6.892292201, 7.88610001, 8.88166317, 9.857072816, 10.836096531, 11.812156883, 12.81219415, 13.836441305, 14.89672472, 16], False, 3, [1, 1, 1, 1, 1, 1, 1, 1, 1, 1, 1, 1, 1, 1, 1, 1, 1, 1, 1], False), False)  # 27
sketch4.addGeometry(Part.BSplineCurve([V(-0.05599, -0.036908, 0), V(-0.050696, -0.038369, 0), V(-0.04044, -0.041201, 0), V(-0.025303, -0.044345, 0), V(-0.010933, -0.04624, 0), V(-0.001608, -0.046498, 0), V(0.002905, -0.046624, 0)], [4, 1, 1, 1, 4], [0, 1.100273476, 2.13160584, 3.095893838, 4], False, 3, [1, 1, 1, 1, 1, 1, 1], False), False)  # 28
sketch4.addGeometry(Part.LineSegment(V(-0.05599, -0.036908, 0), V(-0.029046, -0.168418, 0)), False)  # 29
sketch4.addGeometry(Part.LineSegment(V(-0.029046, -0.168418, 0), V(0.141026, -0.168418, 0)), False)  # 30
add_polygon(sketch4, [(-0.217949, -0.2197), (-0.525641, -0.2197), (-0.525641, -0.168418), (-0.29387, -0.168418), (-0.519531, 0.271786), (-0.480769, 0.29312)])  # lines 31-36
sketch4.addConstraint([
    Sketcher.Constraint("Block", 1),
    Sketcher.Constraint("Block", 2),
    Sketcher.Constraint("Block", 3),
    Sketcher.Constraint("Block", 5),
    Sketcher.Constraint("Block", 6),
    Sketcher.Constraint("Block", 7),
    Sketcher.Constraint("Block", 8),
    Sketcher.Constraint("Block", 10),
    Sketcher.Constraint("Block", 11),
    Sketcher.Constraint("Block", 12),
    Sketcher.Constraint("Block", 13),
    Sketcher.Constraint("Block", 14),
    Sketcher.Constraint("Block", 15),
    Sketcher.Constraint("Block", 16),
    Sketcher.Constraint("Block", 20),
    Sketcher.Constraint("Block", 21),
    Sketcher.Constraint("Block", 22),
    Sketcher.Constraint("Block", 23),
    Sketcher.Constraint("Block", 25),
    Sketcher.Constraint("Block", 26),
    Sketcher.Constraint("Block", 27),
    Sketcher.Constraint("Block", 28),
    Sketcher.Constraint("Coincident", 0, 2, 1, 2),
    Sketcher.Constraint("Coincident", 3, 1, 4, 1),
    Sketcher.Constraint("Coincident", 4, 2, 5, 2),
    Sketcher.Constraint("Coincident", 8, 1, 9, 1),
    Sketcher.Constraint("Coincident", 9, 2, 10, 2),
    Sketcher.Constraint("Coincident", 16, 1, 0, 1),
    Sketcher.Constraint("Coincident", 17, 2, 18, 1),
    Sketcher.Constraint("Coincident", 18, 2, 19, 1),
    Sketcher.Constraint("Coincident", 19, 2, 20, 2),
    Sketcher.Constraint("Coincident", 23, 1, 24, 1),
    Sketcher.Constraint("Coincident", 24, 2, 25, 2),
    Sketcher.Constraint("Coincident", 28, 1, 29, 1),
    Sketcher.Constraint("Coincident", 29, 2, 30, 1),
    Sketcher.Constraint("Coincident", 30, 2, 17, 1),
    Sketcher.Constraint("Vertical", 17),
    Sketcher.Constraint("Horizontal", 18),
    Sketcher.Constraint("Horizontal", 30),
    Sketcher.Constraint("Horizontal", 31),
    Sketcher.Constraint("Vertical", 32),
    Sketcher.Constraint("Horizontal", 33),
    Sketcher.Constraint("Horizontal", 18, 2, 31, 2),
    Sketcher.Constraint("Horizontal", 30, 2, 32, 2),
    Sketcher.Constraint("Equal", 4, 17),
    Sketcher.Constraint("DistanceY", 17, 2, 4, 2, Q("0.25 mm")),
    Sketcher.Constraint("DistanceX", 18, 2, 18, 1, Q("0.205128 mm")),
    Sketcher.Constraint("DistanceX", 33, 1, 33, 2, Q("0.231771 mm")),
    Sketcher.Constraint("DistanceX", 35, 2, 33, 2, Q("0.186899 mm")),
    Sketcher.Constraint("DistanceX", 30, 1, 30, 2, Q("0.170072 mm")),
    Sketcher.Constraint("DistanceX", 31, 2, 31, 1, Q("0.307692 mm")),
    Sketcher.Constraint("DistanceX", 31, 2, -1, 1, Q("0.525641 mm")),
    Sketcher.Constraint("DistanceX", 34, 2, -1, 1, Q("0.519531 mm")),
    Sketcher.Constraint("DistanceY", -1, 1, 35, 2, Q("0.29312 mm")),
    Sketcher.Constraint("DistanceX", 17, 2, 4, 2, Q("0.211538 mm")),
    Sketcher.Constraint("DistanceY", 24, 2, 34, 2, Q("0.119692 mm")),
])
pad3 = body.newObject("PartDesign::Pad", "Pad002")
pad3.Profile = sketch4
pad3.Length = 0.04
pad3.Reversed = True

doc.recompute()
